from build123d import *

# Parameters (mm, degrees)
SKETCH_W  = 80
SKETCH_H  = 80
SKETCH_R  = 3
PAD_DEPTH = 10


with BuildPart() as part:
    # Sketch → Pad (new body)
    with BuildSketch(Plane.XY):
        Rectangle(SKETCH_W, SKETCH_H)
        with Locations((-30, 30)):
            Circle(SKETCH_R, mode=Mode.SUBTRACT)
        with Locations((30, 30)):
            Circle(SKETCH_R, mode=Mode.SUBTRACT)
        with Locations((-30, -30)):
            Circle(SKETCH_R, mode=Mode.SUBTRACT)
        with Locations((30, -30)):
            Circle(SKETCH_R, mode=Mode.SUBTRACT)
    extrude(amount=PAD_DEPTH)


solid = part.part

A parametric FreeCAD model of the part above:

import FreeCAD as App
import Part
import Sketcher

V = App.Vector
Q = App.Units.Quantity

doc = App.newDocument("Part")
params = doc.addObject("Spreadsheet::Sheet", "Params")
for row, (alias, value) in enumerate([
    ("sketch1_diameter", "6 mm"),
    ("sketch1_width", "80 mm"),
    ("pad1_length", "10 mm"),
], start=1):
    params.set(f"A{row}", alias)
    params.set(f"B{row}", "=" + value)
    params.setAlias(f"B{row}", alias)

body = doc.addObject("PartDesign::Body", "Body")

# Sketch on XY plane
sketch1 = body.newObject("Sketcher::SketchObject", "Sketch")
sketch1.AttachmentSupport = (doc.getObject("XY_Plane"), [""])
sketch1.MapMode = "FlatFace"
sketch1.addGeometry([
    Part.LineSegment(V(-40, 40, 0), V(-40, -40, 0)),  # 0
    Part.LineSegment(V(-40, -40, 0), V(40, -40, 0)),  # 1
    Part.LineSegment(V(40, -40, 0), V(40, 40, 0)),  # 2
    Part.LineSegment(V(40, 40, 0), V(-40, 40, 0)),  # 3
    Part.Circle(V(-30, -30, 0), V(0, 0, 1), 3),  # 4
    Part.Circle(V(30, -30, 0), V(0, 0, 1), 3),  # 5
    Part.Circle(V(-30, 30, 0), V(0, 0, 1), 3),  # 6
    Part.Circle(V(30, 30, 0), V(0, 0, 1), 3),  # 7
], False)
sketch1.addConstraint([
    Sketcher.Constraint("Coincident", 0, 2, 1, 1),
    Sketcher.Constraint("Coincident", 1, 2, 2, 1),
    Sketcher.Constraint("Coincident", 2, 2, 3, 1),
    Sketcher.Constraint("Coincident", 3, 2, 0, 1),
    Sketcher.Constraint("Vertical", 0),
    Sketcher.Constraint("Horizontal", 1),
    Sketcher.Constraint("Vertical", 2),
    Sketcher.Constraint("Horizontal", 3),
    Sketcher.Constraint("Equal", 4, 5),
    Sketcher.Constraint("Equal", 5, 6),
    Sketcher.Constraint("Equal", 6, 7),
    Sketcher.Constraint("Symmetric", 5, 3, 6, 3, -1, 1),
    Sketcher.Constraint("Symmetric", 4, 3, 7, 3, -1, 1),
    Sketcher.Constraint("Symmetric", 0, 2, 2, 2, -1, 1),
    Sketcher.Constraint("Symmetric", 4, 3, 5, 3, -2),
    Sketcher.Constraint("Equal", 3, 0),
    Sketcher.Constraint("Diameter", 4, Q("6 mm")),
    Sketcher.Constraint("DistanceX", 1, 1, 1, 2, Q("80 mm")),
    Sketcher.Constraint("DistanceX", 4, 3, -1, 1, Q("30 mm")),
    Sketcher.Constraint("DistanceY", 4, 3, -1, 1, Q("30 mm")),
])
sketch1.setExpression("Constraints[16]", "Params.sketch1_diameter")
sketch1.setExpression("Constraints[17]", "Params.sketch1_width")
pad1 = body.newObject("PartDesign::Pad", "Pad")
pad1.Profile = sketch1
pad1.setExpression("Length", "Params.pad1_length")

doc.recompute()
